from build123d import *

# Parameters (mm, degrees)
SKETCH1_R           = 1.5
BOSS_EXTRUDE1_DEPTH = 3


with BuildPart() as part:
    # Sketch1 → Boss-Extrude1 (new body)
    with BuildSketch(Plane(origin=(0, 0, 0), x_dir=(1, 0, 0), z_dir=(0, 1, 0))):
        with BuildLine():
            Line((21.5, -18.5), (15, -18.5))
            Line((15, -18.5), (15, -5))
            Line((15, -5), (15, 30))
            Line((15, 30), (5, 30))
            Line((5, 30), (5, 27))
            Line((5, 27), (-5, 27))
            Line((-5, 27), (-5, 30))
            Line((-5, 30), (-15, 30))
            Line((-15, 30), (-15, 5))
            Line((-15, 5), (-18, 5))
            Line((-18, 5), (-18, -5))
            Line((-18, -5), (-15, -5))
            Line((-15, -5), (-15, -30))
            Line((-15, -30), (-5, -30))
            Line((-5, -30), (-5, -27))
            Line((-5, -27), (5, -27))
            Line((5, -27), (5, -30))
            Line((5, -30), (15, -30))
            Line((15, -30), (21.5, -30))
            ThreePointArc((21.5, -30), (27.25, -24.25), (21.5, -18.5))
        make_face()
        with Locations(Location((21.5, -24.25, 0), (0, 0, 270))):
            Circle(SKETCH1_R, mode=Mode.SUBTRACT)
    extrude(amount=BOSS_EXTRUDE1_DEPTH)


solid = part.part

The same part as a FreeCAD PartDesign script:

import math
import FreeCAD as App
import Part
import Sketcher

V = App.Vector
Q = App.Units.Quantity

doc = App.newDocument("Part")
body = doc.addObject("PartDesign::Body", "Body")

# Sketch on XZ plane
sketch1 = body.newObject("Sketcher::SketchObject", "Sketch")
sketch1.AttachmentSupport = (doc.getObject("XZ_Plane"), [""])
sketch1.MapMode = "FlatFace"
sketch1.addGeometry([
    Part.LineSegment(V(21.5, 18.5, 0), V(15, 18.5, 0)),  # 0
    Part.LineSegment(V(15, 18.5, 0), V(15, -30, 0)),  # 1
    Part.LineSegment(V(15, -30, 0), V(5, -30, 0)),  # 2
    Part.LineSegment(V(5, -30, 0), V(5, -27, 0)),  # 3
    Part.LineSegment(V(5, -27, 0), V(-5, -27, 0)),  # 4
    Part.LineSegment(V(-5, -27, 0), V(-5, -30, 0)),  # 5
    Part.LineSegment(V(-5, -30, 0), V(-15, -30, 0)),  # 6
    Part.LineSegment(V(-15, -30, 0), V(-15, -5, 0)),  # 7
    Part.LineSegment(V(-15, -5, 0), V(-18, -5, 0)),  # 8
    Part.LineSegment(V(-18, -5, 0), V(-18, 5, 0)),  # 9
    Part.LineSegment(V(-18, 5, 0), V(-15, 5, 0)),  # 10
    Part.LineSegment(V(-15, 5, 0), V(-15, 30, 0)),  # 11
    Part.LineSegment(V(-15, 30, 0), V(-5, 30, 0)),  # 12
    Part.LineSegment(V(-5, 30, 0), V(-5, 27, 0)),  # 13
    Part.LineSegment(V(-5, 27, 0), V(5, 27, 0)),  # 14
    Part.LineSegment(V(5, 27, 0), V(5, 30, 0)),  # 15
    Part.LineSegment(V(5, 30, 0), V(21.5, 30, 0)),  # 16
    Part.ArcOfCircle(Part.Circle(V(21.5, 24.2, 0), V(0, 0, 1), 5.8), math.radians(-90), math.radians(90)),  # 17
    Part.Circle(V(21.5, 24.2, 0), V(0, 0, 1), 1.5),  # 18
], False)
sketch1.addConstraint([
    Sketcher.Constraint("Coincident", 0, 2, 1, 1),
    Sketcher.Constraint("Coincident", 1, 2, 2, 1),
    Sketcher.Constraint("Coincident", 2, 2, 3, 1),
    Sketcher.Constraint("Coincident", 3, 2, 4, 1),
    Sketcher.Constraint("Coincident", 4, 2, 5, 1),
    Sketcher.Constraint("Coincident", 5, 2, 6, 1),
    Sketcher.Constraint("Coincident", 6, 2, 7, 1),
    Sketcher.Constraint("Coincident", 7, 2, 8, 1),
    Sketcher.Constraint("Coincident", 8, 2, 9, 1),
    Sketcher.Constraint("Coincident", 9, 2, 10, 1),
    Sketcher.Constraint("Coincident", 10, 2, 11, 1),
    Sketcher.Constraint("Coincident", 11, 2, 12, 1),
    Sketcher.Constraint("Coincident", 12, 2, 13, 1),
    Sketcher.Constraint("Coincident", 13, 2, 14, 1),
    Sketcher.Constraint("Coincident", 14, 2, 15, 1),
    Sketcher.Constraint("Coincident", 15, 2, 16, 1),
    Sketcher.Constraint("Tangent", 16, 2, 17, 2),
    Sketcher.Constraint("Tangent", 17, 1, 0, 1),
    Sketcher.Constraint("Horizontal", 0),
    Sketcher.Constraint("Vertical", 1),
    Sketcher.Constraint("Horizontal", 2),
    Sketcher.Constraint("Vertical", 3),
    Sketcher.Constraint("Horizontal", 4),
    Sketcher.Constraint("Vertical", 5),
    Sketcher.Constraint("Horizontal", 6),
    Sketcher.Constraint("Vertical", 7),
    Sketcher.Constraint("Horizontal", 8),
    Sketcher.Constraint("Vertical", 9),
    Sketcher.Constraint("Horizontal", 10),
    Sketcher.Constraint("Vertical", 11),
    Sketcher.Constraint("Horizontal", 12),
    Sketcher.Constraint("Vertical", 13),
    Sketcher.Constraint("Horizontal", 14),
    Sketcher.Constraint("Vertical", 15),
    Sketcher.Constraint("Horizontal", 16),
    Sketcher.Constraint("Coincident", 18, 3, 17, 3),
    Sketcher.Constraint("Symmetric", 1, 2, 11, 2, -1, 1),
    Sketcher.Constraint("Symmetric", 3, 2, 13, 2, -1, 1),
    Sketcher.Constraint("Symmetric", 5, 2, 15, 2, -1, 1),
    Sketcher.Constraint("Symmetric", 2, 2, 5, 2, -2),
    Sketcher.Constraint("Symmetric", 7, 2, 10, 2, -1),
    Sketcher.Constraint("Equal", 2, 4),
    Sketcher.Constraint("Equal", 10, 3),
    Sketcher.Constraint("Equal", 14, 9),
    Sketcher.Constraint("Diameter", 18, Q("3 mm")),
    Sketcher.Constraint("DistanceX", 2, 2, 2, 1, Q("10 mm")),
    Sketcher.Constraint("DistanceX", 8, 2, 8, 1, Q("3 mm")),
    Sketcher.Constraint("DistanceY", 7, 1, 7, 2, Q("25 mm")),
    Sketcher.Constraint("Radius", 17, Q("5.75 mm")),
    Sketcher.Constraint("DistanceX", 0, 2, 0, 1, Q("6.5 mm")),
])
pad1 = body.newObject("PartDesign::Pad", "Pad")
pad1.Profile = sketch1
pad1.Length = 3
pad1.Reversed = True

doc.recompute()
